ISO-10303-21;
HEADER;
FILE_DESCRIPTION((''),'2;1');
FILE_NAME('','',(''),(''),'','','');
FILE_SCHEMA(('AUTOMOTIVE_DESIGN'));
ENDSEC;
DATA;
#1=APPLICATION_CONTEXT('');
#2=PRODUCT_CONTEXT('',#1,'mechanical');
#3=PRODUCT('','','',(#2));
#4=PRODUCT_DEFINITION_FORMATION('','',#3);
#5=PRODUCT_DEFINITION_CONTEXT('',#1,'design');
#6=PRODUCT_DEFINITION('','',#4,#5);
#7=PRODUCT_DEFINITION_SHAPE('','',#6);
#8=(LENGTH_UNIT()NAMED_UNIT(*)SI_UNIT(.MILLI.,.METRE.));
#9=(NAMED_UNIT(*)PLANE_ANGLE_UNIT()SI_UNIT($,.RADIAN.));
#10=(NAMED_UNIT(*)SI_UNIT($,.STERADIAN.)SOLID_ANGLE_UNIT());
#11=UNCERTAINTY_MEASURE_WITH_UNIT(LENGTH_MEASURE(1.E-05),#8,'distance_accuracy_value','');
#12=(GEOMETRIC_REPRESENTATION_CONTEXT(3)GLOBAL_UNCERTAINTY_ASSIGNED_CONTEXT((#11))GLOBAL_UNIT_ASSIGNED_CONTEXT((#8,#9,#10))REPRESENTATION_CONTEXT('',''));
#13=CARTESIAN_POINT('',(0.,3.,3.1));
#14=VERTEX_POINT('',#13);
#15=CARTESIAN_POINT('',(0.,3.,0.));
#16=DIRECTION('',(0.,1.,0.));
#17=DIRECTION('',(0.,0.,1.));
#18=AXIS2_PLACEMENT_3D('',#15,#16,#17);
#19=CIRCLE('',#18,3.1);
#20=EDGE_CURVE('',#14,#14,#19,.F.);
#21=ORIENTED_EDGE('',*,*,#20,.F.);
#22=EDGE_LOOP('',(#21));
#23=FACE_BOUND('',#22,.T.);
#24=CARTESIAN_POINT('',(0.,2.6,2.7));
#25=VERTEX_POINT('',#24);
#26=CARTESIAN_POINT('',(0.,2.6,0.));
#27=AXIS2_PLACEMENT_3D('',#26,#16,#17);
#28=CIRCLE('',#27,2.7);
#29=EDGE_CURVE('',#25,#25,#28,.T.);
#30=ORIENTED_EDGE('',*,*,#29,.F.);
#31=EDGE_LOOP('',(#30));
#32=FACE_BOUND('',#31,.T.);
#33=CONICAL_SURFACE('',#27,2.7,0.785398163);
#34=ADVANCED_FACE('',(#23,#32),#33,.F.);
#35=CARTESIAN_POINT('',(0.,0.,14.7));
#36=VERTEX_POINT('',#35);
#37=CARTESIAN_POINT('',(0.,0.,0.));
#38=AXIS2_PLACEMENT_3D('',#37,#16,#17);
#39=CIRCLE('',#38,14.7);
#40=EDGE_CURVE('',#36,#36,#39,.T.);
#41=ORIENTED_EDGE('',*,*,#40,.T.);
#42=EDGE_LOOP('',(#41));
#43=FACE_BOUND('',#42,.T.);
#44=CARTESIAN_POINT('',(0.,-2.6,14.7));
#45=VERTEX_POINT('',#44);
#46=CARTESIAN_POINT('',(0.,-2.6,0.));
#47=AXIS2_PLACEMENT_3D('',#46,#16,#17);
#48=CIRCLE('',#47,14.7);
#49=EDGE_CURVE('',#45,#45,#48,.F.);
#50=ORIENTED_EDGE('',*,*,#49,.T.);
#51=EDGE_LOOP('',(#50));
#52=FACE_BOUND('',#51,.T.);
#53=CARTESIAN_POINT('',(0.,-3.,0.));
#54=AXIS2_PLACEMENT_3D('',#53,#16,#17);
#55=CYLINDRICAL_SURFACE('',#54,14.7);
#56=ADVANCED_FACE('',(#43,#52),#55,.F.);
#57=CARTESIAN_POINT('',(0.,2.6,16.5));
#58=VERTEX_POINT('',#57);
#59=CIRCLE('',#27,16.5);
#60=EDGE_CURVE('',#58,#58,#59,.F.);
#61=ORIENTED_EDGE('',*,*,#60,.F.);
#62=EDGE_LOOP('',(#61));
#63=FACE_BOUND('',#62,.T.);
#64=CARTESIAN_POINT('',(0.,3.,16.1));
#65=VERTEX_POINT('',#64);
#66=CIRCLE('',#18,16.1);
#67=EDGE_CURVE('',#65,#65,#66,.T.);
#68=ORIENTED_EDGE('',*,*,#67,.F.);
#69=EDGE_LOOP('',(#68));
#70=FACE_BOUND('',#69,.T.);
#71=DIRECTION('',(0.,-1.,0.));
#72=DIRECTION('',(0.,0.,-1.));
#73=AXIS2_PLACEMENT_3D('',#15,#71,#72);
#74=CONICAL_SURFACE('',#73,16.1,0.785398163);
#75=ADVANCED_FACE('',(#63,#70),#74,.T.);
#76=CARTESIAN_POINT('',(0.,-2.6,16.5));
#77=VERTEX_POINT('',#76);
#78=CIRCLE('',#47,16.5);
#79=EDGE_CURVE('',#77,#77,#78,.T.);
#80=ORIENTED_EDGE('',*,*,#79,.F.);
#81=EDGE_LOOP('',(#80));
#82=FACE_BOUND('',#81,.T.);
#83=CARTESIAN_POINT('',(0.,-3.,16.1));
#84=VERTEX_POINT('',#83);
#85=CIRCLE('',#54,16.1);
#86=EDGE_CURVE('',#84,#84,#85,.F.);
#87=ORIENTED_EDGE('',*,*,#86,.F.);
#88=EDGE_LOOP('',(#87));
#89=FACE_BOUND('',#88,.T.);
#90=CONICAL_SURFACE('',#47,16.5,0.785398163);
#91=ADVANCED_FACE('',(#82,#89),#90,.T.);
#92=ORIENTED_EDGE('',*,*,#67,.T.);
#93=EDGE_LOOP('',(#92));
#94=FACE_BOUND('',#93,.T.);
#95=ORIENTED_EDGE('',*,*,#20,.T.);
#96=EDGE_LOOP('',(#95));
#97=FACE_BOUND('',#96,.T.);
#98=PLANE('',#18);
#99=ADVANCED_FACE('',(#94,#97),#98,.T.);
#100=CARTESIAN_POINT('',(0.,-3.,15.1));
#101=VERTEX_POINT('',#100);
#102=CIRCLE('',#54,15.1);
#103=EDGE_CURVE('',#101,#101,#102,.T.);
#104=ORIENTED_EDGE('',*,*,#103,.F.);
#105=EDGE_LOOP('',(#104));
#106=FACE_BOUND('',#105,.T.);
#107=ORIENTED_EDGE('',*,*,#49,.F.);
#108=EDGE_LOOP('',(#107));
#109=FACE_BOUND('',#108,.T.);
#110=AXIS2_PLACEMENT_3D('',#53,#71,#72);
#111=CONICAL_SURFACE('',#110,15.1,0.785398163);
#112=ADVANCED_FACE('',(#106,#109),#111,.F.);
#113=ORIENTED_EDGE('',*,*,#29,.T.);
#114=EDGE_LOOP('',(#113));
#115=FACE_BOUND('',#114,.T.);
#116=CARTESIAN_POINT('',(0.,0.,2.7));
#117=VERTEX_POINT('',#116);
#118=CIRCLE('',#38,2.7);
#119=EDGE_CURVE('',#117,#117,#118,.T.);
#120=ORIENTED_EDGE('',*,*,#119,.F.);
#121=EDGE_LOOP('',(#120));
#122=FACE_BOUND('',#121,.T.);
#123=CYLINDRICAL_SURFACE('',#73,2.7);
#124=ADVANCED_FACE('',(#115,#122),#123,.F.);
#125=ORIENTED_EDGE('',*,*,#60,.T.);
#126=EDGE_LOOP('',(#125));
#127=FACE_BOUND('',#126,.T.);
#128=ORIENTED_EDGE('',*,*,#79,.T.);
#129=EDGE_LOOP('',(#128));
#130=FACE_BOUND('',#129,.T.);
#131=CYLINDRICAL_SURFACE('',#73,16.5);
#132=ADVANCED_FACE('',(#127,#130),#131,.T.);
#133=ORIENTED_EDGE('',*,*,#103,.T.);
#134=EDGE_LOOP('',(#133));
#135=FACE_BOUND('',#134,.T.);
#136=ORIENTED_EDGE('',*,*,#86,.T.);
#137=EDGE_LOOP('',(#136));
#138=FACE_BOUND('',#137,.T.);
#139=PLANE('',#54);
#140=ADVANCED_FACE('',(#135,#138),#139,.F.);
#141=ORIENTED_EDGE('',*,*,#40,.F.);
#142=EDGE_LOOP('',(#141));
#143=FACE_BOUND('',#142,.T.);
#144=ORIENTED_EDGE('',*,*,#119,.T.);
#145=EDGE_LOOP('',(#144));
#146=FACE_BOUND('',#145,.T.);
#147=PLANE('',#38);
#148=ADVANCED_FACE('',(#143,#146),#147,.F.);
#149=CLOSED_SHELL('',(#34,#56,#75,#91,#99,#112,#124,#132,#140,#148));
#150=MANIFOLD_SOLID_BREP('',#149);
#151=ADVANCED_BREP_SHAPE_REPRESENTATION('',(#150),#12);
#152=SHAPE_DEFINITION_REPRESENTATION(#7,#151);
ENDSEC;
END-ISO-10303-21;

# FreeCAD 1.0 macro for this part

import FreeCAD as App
import Part
import Sketcher
from FreeCAD import Vector


def edges_at(feature, points):
    """Names of the edges that pass closest to the given points."""
    edges = feature.Shape.Edges
    near = lambda p: min(range(len(edges)), key=lambda i: edges[i].distToShape(Part.Vertex(*p))[0])
    return sorted({f"Edge{near(p) + 1}" for p in points})

doc = App.newDocument("Part")
body = doc.addObject("PartDesign::Body", "Body")

# Sketch on XZ plane
sketch1 = doc.addObject("Sketcher::SketchObject", "Sketch")
body.addObject(sketch1)
sketch1.AttachmentSupport = (doc.XZ_Plane, [""])
sketch1.MapMode = "FlatFace"
sketch1.addGeometry([
    Part.Circle(Vector(0, 0, 0), Vector(0, 0, 1), 16.5),
    Part.Circle(Vector(0, 0, 0), Vector(0, 0, 1), 2.7),
], False)
sketch1.addConstraint([
    Sketcher.Constraint("Coincident", 0, 3, -1, 1),
    Sketcher.Constraint("Coincident", 1, 3, -1, 1),
    Sketcher.Constraint("Diameter", 0, 33.0),
    Sketcher.Constraint("Diameter", 1, 5.4),
])
pad1 = doc.addObject("PartDesign::Pad", "Pad")
body.addObject(pad1)
pad1.Profile = sketch1
pad1.Length = 3
pad1.Reversed = True

# Sketch on XZ plane
sketch2 = doc.addObject("Sketcher::SketchObject", "Sketch001")
body.addObject(sketch2)
sketch2.AttachmentSupport = (doc.XZ_Plane, [""])
sketch2.MapMode = "FlatFace"
sketch2.AttachmentOffset = App.Placement(Vector(0, 0, 3), App.Rotation())
sketch2.addGeometry([
    Part.Circle(Vector(0, 0, 0), Vector(0, 0, 1), 16),
    Part.Circle(Vector(0, 0, 0), Vector(0, 0, 1), 15),
], False)
sketch2.addConstraint([
    Sketcher.Constraint("Coincident", 0, 3, -1, 1),
    Sketcher.Constraint("Coincident", 1, 3, -1, 1),
    Sketcher.Constraint("Diameter", 0, 33.0),
    Sketcher.Constraint("Diameter", 1, 29.4),
])
pad2 = doc.addObject("PartDesign::Pad", "Pad001")
body.addObject(pad2)
pad2.Profile = sketch2
pad2.Length = 3
pad2.Reversed = True
doc.recompute()

chamfer = doc.addObject("PartDesign::Chamfer", "Chamfer")
body.addObject(chamfer)
chamfer.Base = (pad2, edges_at(pad2, [
    (0, -3, -16.5),
    (0, -3, -14.7),
    (0, 3, -2.7),
    (0, 3, -16.5),
]))
chamfer.Size = 0.4

doc.recompute()
